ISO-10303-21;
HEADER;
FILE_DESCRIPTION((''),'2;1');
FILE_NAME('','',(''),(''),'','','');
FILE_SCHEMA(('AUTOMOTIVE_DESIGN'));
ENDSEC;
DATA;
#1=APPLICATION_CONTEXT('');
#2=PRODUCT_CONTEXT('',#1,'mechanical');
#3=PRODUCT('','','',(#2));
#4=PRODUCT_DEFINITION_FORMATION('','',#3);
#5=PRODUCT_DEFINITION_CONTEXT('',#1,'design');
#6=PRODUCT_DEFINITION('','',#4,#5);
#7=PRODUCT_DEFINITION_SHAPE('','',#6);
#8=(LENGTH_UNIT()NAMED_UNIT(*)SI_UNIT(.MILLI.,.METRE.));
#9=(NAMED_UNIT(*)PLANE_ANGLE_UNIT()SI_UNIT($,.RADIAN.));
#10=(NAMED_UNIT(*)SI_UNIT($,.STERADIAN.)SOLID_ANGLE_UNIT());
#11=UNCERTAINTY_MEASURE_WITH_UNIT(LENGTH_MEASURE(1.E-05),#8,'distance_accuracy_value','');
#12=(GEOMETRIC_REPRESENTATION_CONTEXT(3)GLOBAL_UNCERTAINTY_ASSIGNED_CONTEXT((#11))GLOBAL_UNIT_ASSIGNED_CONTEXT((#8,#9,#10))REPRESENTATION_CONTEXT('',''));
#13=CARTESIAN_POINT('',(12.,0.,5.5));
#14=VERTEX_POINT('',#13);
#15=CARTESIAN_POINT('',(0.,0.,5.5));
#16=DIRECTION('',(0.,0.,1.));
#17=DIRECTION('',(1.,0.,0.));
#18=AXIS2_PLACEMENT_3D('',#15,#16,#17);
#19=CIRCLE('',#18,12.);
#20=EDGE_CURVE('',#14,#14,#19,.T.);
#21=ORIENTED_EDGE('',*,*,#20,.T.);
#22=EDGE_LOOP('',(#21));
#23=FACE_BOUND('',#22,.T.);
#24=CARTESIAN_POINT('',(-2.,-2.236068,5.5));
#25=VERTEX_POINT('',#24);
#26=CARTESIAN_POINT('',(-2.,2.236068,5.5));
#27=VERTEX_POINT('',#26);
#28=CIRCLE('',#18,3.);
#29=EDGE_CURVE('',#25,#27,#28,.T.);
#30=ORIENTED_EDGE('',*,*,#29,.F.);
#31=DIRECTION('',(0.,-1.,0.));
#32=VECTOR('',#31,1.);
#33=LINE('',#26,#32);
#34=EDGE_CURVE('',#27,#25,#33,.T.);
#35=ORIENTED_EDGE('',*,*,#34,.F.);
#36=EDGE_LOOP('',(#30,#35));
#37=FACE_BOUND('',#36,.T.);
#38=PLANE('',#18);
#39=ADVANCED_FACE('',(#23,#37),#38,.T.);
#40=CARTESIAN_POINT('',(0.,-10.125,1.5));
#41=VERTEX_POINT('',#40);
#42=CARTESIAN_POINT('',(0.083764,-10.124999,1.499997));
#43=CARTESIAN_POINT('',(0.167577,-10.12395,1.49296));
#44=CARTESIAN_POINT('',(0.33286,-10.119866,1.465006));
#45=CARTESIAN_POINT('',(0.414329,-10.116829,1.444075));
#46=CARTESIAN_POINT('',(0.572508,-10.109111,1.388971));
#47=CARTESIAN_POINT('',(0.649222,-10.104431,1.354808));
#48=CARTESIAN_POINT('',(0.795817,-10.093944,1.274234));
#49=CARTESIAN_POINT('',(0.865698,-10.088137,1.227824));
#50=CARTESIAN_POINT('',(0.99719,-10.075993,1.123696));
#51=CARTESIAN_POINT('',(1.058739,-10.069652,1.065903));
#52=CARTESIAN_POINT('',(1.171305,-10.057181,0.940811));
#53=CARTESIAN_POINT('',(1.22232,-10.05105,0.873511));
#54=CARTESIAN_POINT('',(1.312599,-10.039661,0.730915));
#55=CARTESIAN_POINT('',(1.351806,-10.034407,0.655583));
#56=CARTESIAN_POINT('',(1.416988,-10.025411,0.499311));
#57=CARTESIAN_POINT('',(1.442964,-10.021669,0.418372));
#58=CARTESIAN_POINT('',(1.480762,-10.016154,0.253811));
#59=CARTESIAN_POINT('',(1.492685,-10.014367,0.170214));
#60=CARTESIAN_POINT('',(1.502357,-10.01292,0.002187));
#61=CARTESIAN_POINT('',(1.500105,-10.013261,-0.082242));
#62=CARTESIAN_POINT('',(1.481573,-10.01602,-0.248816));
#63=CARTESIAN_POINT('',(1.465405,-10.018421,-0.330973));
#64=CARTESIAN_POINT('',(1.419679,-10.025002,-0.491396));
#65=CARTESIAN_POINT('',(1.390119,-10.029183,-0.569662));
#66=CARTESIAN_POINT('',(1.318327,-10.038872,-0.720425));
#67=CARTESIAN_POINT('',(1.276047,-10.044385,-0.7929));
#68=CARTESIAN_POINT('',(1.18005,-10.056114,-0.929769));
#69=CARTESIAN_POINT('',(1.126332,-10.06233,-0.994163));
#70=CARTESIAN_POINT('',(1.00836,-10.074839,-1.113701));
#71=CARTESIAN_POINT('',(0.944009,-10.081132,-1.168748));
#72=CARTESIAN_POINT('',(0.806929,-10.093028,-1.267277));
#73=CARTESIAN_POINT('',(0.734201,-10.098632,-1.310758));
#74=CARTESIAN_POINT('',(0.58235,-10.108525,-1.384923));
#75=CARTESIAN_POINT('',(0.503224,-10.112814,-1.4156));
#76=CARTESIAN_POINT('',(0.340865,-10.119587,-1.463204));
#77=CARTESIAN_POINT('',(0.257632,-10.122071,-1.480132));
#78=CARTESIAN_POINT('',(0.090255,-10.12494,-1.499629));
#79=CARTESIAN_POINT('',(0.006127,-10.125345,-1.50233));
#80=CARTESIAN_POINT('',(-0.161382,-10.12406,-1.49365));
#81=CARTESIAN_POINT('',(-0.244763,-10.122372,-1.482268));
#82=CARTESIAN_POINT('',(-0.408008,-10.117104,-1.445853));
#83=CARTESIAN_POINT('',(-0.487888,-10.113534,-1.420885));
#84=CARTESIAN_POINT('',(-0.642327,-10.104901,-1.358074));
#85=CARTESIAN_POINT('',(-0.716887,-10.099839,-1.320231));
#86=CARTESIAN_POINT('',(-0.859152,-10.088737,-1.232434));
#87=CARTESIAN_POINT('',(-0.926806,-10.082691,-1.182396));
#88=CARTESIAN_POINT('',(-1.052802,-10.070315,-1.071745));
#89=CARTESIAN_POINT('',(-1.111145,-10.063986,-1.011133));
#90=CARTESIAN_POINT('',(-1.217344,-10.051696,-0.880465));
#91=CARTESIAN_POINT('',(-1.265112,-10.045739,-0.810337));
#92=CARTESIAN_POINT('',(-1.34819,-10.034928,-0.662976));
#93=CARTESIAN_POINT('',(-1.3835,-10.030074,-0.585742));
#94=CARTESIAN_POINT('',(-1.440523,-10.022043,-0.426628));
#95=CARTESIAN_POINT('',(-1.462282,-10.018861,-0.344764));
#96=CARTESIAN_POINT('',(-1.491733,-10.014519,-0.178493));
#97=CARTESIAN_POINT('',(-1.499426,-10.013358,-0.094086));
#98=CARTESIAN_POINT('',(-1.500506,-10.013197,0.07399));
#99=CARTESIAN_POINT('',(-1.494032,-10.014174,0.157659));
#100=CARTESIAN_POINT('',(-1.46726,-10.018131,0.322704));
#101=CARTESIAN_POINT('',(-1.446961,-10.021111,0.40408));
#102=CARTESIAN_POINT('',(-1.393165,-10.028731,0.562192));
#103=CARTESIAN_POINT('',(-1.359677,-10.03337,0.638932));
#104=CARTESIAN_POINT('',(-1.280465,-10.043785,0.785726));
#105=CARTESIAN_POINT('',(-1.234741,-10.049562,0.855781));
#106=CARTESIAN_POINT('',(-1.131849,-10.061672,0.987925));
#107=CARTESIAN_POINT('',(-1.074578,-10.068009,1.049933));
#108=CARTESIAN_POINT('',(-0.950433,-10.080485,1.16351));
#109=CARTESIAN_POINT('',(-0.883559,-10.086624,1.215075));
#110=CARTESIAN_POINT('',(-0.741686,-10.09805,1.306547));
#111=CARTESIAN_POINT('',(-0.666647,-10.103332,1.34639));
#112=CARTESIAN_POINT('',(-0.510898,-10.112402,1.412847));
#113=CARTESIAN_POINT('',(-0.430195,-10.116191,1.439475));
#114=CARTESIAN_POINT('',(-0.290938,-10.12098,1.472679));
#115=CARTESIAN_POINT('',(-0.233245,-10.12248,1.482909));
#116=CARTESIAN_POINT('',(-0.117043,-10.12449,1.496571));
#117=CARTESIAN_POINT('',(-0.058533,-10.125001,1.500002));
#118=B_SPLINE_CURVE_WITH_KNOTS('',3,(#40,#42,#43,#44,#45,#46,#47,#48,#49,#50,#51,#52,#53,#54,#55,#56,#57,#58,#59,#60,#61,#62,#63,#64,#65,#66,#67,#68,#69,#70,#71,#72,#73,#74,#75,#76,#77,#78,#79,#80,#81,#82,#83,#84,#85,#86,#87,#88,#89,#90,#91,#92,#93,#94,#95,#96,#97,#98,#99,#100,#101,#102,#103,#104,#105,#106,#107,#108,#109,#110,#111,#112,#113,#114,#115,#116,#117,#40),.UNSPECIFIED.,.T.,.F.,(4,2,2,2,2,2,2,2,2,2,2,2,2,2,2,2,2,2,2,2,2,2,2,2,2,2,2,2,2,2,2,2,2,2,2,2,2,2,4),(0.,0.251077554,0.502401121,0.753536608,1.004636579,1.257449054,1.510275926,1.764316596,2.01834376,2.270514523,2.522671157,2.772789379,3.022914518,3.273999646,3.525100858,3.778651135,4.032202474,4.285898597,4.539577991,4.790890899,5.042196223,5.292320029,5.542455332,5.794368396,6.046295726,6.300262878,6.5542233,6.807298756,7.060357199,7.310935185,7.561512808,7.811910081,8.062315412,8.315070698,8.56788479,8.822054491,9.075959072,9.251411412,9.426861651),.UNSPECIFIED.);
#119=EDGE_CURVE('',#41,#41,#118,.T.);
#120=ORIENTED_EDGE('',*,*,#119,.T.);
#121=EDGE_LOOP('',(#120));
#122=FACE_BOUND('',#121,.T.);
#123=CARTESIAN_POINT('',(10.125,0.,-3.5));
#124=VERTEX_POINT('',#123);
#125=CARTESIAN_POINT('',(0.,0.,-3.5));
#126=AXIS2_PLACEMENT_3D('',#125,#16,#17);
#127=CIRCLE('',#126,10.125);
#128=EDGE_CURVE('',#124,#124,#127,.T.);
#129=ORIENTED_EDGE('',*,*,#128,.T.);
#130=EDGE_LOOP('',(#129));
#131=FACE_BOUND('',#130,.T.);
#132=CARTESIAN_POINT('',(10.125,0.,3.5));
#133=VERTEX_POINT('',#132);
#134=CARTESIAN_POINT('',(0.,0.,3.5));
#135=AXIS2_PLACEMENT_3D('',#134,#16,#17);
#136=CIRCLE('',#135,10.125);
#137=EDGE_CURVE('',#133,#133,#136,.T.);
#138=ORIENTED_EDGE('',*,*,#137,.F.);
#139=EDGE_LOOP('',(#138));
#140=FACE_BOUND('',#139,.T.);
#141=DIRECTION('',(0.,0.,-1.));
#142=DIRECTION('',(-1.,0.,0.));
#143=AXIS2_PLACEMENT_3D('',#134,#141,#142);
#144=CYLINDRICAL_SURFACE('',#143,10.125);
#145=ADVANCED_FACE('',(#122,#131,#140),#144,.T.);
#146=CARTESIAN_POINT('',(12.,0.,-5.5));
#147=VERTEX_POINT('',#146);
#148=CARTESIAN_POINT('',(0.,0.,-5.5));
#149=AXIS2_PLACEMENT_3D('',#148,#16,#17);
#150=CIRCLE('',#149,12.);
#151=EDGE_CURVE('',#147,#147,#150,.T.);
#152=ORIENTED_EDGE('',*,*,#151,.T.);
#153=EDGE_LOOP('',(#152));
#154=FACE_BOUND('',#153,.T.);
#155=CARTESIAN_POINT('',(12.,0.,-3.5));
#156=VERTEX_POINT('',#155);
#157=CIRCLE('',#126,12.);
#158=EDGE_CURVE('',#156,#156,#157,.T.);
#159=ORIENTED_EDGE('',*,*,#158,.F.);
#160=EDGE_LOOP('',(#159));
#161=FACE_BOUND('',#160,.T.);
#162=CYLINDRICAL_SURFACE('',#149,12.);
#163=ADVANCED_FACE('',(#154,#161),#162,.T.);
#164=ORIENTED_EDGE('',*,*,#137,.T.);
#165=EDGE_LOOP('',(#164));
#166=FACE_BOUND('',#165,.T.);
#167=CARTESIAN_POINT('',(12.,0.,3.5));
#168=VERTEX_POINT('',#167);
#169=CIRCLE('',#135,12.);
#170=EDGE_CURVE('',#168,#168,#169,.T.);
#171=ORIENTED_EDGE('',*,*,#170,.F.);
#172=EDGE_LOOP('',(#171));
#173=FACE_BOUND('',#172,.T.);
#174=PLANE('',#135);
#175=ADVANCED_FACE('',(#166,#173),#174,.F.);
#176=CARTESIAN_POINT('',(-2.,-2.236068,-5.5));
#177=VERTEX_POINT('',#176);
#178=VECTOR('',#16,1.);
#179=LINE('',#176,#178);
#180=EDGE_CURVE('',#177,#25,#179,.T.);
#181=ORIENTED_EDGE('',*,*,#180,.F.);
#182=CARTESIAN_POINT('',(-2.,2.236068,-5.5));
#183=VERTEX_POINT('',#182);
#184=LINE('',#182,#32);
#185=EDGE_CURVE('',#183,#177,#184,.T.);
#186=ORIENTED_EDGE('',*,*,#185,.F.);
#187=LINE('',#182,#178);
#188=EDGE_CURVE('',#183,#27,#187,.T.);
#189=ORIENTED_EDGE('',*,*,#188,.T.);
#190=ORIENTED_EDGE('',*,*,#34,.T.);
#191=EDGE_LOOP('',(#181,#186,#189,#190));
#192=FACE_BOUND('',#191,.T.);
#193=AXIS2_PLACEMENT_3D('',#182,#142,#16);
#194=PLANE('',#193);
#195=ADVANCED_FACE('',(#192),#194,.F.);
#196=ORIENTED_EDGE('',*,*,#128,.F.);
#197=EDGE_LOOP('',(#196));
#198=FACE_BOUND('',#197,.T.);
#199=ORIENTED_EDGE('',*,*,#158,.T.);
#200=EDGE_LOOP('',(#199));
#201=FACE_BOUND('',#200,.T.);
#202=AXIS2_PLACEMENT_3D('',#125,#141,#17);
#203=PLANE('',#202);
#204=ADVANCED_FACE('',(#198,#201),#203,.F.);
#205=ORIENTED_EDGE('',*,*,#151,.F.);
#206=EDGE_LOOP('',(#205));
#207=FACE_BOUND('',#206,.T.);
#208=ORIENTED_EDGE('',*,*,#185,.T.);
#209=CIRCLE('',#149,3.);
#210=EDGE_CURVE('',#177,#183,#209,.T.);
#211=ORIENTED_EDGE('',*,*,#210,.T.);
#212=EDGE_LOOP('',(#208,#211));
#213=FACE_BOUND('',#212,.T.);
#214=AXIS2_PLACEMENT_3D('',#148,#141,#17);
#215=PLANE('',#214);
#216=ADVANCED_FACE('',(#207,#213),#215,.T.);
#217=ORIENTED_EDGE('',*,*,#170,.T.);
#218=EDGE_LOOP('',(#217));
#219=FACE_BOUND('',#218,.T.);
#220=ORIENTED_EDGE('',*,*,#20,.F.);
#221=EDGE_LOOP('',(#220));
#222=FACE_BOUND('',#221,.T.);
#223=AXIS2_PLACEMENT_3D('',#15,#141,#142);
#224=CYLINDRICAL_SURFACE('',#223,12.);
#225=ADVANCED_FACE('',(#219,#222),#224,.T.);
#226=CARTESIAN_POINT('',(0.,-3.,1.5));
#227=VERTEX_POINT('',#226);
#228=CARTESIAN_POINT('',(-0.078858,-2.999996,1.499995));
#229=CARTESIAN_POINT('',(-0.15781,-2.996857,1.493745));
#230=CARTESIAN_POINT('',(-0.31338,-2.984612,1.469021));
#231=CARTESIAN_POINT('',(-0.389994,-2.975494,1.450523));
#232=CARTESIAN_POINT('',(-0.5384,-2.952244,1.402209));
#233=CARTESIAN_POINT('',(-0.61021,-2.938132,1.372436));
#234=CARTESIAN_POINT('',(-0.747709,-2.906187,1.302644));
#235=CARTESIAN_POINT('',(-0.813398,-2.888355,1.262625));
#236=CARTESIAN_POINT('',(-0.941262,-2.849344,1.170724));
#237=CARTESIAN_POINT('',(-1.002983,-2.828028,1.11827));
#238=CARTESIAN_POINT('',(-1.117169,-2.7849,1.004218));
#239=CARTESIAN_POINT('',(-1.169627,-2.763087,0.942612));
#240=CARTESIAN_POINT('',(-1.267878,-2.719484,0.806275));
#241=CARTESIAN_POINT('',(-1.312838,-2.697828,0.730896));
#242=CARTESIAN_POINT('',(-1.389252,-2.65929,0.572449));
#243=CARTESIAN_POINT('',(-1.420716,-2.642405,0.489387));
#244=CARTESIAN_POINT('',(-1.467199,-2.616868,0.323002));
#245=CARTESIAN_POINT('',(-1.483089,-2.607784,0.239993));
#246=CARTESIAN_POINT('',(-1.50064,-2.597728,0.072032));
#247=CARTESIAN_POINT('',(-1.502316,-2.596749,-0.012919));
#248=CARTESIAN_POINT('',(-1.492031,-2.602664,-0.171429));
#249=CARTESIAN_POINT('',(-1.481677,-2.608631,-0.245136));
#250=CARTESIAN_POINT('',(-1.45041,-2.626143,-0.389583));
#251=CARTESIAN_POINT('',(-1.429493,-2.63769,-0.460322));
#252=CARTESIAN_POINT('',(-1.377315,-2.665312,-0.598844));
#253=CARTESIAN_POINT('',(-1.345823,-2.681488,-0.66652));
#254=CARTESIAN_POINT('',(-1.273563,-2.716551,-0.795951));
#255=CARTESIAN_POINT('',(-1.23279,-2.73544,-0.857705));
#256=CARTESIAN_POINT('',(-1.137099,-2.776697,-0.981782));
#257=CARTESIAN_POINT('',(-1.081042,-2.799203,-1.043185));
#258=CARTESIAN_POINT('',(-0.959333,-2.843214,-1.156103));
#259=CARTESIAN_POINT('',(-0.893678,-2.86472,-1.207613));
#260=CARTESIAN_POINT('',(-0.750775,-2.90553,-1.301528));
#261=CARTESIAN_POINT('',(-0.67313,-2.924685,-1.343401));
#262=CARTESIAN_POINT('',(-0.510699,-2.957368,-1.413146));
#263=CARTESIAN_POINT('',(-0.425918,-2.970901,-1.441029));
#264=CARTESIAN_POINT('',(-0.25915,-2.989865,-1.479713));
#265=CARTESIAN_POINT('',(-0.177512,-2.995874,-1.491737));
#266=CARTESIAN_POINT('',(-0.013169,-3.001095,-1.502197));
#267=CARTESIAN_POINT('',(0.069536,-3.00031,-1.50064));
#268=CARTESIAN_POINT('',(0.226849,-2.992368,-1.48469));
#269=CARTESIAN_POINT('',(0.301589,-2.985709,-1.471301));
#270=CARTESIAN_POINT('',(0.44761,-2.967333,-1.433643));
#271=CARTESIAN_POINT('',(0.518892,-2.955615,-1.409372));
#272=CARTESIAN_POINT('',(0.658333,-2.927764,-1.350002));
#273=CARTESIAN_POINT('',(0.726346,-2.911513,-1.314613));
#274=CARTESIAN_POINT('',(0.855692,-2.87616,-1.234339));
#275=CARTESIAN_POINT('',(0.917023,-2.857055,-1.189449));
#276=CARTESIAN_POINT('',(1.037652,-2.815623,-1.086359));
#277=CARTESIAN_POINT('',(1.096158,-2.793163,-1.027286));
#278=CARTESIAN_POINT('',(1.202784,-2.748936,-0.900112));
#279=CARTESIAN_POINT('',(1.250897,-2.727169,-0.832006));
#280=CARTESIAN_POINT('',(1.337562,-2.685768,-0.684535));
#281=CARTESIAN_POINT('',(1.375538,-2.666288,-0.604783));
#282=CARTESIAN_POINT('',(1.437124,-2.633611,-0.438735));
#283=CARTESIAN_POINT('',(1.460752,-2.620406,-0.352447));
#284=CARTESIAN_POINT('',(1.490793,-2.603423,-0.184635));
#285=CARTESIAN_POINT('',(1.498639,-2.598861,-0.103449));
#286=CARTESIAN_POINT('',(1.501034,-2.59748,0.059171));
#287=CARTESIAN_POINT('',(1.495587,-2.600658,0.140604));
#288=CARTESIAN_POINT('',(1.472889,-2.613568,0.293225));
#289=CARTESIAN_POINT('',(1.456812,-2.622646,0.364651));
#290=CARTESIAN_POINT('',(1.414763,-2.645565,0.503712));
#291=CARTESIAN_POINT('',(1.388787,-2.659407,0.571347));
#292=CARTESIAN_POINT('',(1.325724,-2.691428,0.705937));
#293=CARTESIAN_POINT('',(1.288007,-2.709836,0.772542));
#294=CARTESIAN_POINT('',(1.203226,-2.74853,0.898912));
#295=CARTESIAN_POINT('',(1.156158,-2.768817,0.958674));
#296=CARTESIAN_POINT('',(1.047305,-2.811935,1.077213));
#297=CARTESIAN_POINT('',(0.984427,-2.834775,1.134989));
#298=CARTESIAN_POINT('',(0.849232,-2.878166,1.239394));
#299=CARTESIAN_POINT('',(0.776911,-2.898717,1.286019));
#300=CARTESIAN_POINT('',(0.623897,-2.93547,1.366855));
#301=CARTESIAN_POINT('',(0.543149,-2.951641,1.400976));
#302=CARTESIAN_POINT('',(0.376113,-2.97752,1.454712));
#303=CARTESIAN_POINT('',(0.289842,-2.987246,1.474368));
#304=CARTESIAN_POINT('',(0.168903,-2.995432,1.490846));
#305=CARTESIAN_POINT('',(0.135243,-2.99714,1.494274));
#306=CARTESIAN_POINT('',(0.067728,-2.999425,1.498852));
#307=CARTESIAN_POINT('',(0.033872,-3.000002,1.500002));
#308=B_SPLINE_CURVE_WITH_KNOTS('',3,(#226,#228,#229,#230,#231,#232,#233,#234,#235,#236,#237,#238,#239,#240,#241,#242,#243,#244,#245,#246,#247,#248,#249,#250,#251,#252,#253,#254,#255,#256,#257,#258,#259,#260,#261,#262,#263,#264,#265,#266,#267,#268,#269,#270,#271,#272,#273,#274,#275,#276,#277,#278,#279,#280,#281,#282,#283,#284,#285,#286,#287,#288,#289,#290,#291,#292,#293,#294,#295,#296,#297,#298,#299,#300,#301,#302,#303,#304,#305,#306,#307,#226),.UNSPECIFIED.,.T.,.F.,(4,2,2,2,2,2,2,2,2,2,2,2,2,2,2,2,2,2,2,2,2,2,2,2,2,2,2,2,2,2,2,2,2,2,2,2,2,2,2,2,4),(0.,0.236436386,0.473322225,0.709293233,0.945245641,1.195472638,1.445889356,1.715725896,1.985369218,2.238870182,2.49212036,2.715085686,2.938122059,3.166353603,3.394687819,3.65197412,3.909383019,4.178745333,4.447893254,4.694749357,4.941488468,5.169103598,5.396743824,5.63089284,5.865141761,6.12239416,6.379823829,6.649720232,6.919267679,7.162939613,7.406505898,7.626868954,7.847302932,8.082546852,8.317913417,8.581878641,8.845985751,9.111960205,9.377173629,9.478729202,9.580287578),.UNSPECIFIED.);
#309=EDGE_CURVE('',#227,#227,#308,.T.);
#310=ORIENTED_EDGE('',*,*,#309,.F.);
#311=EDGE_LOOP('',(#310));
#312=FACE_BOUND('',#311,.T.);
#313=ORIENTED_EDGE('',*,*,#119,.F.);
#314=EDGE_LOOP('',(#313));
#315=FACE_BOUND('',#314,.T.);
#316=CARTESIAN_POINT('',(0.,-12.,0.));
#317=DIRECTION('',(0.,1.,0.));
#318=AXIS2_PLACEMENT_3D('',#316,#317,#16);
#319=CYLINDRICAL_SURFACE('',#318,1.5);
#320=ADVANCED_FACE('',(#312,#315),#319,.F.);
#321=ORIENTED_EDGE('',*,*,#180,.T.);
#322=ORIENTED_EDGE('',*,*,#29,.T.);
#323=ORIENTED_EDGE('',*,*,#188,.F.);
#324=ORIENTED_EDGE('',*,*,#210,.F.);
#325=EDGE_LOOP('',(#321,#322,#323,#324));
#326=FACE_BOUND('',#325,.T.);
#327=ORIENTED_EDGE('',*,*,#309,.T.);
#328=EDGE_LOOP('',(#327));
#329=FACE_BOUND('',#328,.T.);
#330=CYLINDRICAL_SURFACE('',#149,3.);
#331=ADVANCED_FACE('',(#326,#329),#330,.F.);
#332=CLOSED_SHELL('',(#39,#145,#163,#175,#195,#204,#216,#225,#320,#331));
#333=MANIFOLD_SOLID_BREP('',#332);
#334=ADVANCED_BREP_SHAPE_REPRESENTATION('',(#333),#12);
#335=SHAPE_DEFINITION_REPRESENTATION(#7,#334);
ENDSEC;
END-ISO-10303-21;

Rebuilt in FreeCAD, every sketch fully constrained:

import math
import FreeCAD as App
import Part
import Sketcher

V = App.Vector

doc = App.newDocument("Part")
body = doc.addObject("PartDesign::Body", "Body")

# Sketch on XY plane
sketch1 = body.newObject("Sketcher::SketchObject", "Sketch")
sketch1.AttachmentSupport = (doc.getObject("XY_Plane"), [""])
sketch1.MapMode = "FlatFace"
sketch1.addGeometry(Part.Circle(V(0, 0, 0), V(0, 0, 1), 10.125), False)
sketch1.addConstraint([
    Sketcher.Constraint("Coincident", 0, 3, -1, 1),
    Sketcher.Constraint("Diameter", 0, 20.25),
])
pad1 = body.newObject("PartDesign::Pad", "Pad")
pad1.Profile = sketch1
pad1.Length = 7
pad1.Midplane = True

# Sketch on XY plane
sketch2 = body.newObject("Sketcher::SketchObject", "Sketch001")
sketch2.AttachmentSupport = (doc.getObject("XY_Plane"), [""])
sketch2.MapMode = "FlatFace"
sketch2.AttachmentOffset = App.Placement(V(0, 0, 3.5), App.Rotation())
sketch2.addGeometry(Part.Circle(V(0, 0, 0), V(0, 0, 1), 12), False)
sketch2.addConstraint([
    Sketcher.Constraint("Coincident", 0, 3, -1, 1),
    Sketcher.Constraint("Diameter", 0, 24.0),
])
pad2 = body.newObject("PartDesign::Pad", "Pad001")
pad2.Profile = sketch2
pad2.Length = 2
doc.recompute()

mirrored = body.newObject("PartDesign::Mirrored", "Mirrored")
mirrored.Originals = [pad2]
mirrored.MirrorPlane = (doc.getObject("XY_Plane"), [""])
body.Tip = mirrored

# Sketch on XY plane
sketch3 = body.newObject("Sketcher::SketchObject", "Sketch002")
sketch3.AttachmentSupport = (doc.getObject("XY_Plane"), [""])
sketch3.MapMode = "FlatFace"
sketch3.AttachmentOffset = App.Placement(V(0, 0, 5.5), App.Rotation())
sketch3.addGeometry([
    Part.LineSegment(V(-2, 2.236068, 0), V(-2, -2.236068, 0)),
    Part.ArcOfCircle(Part.Circle(V(0, 0, 0), V(0, 0, 1), 3), math.radians(-131.810315), math.radians(131.810315)),
], False)
sketch3.addConstraint([
    Sketcher.Constraint("Coincident", 0, 1, 1, 2),
    Sketcher.Constraint("Coincident", 1, 1, 0, 2),
    Sketcher.Constraint("Vertical", 0),
    Sketcher.Constraint("Coincident", 1, 3, -1, 1),
    Sketcher.Constraint("Radius", 1, 3.0),
    Sketcher.Constraint("DistanceX", 0, 1, -1, 1, 2.0),
])
pocket1 = body.newObject("PartDesign::Pocket", "Pocket")
pocket1.Profile = sketch3
pocket1.Type = "ThroughAll"

# Sketch on XZ plane
sketch4 = body.newObject("Sketcher::SketchObject", "Sketch003")
sketch4.AttachmentSupport = (doc.getObject("XZ_Plane"), [""])
sketch4.MapMode = "FlatFace"
sketch4.addGeometry(Part.Circle(V(0, 0, 0), V(0, 0, 1), 1.5), False)
sketch4.addConstraint([
    Sketcher.Constraint("Coincident", 0, 3, -1, 1),
    Sketcher.Constraint("Diameter", 0, 3.0),
])
pocket2 = body.newObject("PartDesign::Pocket", "Pocket001")
pocket2.Profile = sketch4
pocket2.Type = "ThroughAll"
pocket2.Reversed = True

doc.recompute()
